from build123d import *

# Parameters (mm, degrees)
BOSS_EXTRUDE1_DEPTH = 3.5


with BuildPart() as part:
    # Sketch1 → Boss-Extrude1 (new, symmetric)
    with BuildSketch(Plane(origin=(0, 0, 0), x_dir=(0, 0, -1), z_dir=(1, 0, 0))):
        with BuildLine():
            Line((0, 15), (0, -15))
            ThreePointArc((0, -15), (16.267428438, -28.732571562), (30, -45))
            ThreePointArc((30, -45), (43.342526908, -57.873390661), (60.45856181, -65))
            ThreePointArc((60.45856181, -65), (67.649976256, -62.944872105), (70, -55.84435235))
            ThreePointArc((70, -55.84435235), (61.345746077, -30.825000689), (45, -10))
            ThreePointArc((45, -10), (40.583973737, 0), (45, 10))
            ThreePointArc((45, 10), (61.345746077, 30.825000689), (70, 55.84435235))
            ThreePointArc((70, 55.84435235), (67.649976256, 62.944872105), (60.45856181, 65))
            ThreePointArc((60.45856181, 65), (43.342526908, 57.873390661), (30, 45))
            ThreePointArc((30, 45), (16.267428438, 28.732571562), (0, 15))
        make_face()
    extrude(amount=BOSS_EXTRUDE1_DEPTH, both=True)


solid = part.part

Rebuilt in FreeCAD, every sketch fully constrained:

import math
import FreeCAD as App
import Part
import Sketcher

V = App.Vector
Q = App.Units.Quantity

doc = App.newDocument("Part")
body = doc.addObject("PartDesign::Body", "Body")

sketch1 = body.newObject("Sketcher::SketchObject", "Sketch")
sketch1.AttachmentSupport = (doc.getObject("YZ_Plane"), [""])
sketch1.MapMode = "FlatFace"
sketch1.addGeometry([
    Part.LineSegment(V(15, 0, 0), V(-15, 0, 0)),
    Part.ArcOfCircle(Part.Circle(V(-118.128694, 73.128694, 0), V(0, 0, 1), 126.425208), math.radians(-54.659496), math.radians(-35.340504)),
    Part.ArcOfCircle(Part.Circle(V(-16.078278, -70.786444, 0), V(0, 0, 1), 50), math.radians(125.340504), math.radians(168.079303)),
    Part.ArcOfCircle(Part.Circle(V(-57.172525, -62.111023, 0), V(0, 0, 1), 8), math.radians(168.079303), math.radians(279.556582)),
    Part.ArcOfCircle(Part.Circle(V(-69.126074, 8.88977, 0), V(0, 0, 1), 80), math.radians(-80.443418), math.radians(-42.347242)),
    Part.ArcOfCircle(Part.Circle(V(0, -54.114383, 0), V(0, 0, 1), 13.53041), math.radians(42.347242), math.radians(137.652758)),
    Part.ArcOfCircle(Part.Circle(V(69.126074, 8.88977, 0), V(0, 0, 1), 80), math.radians(-137.652758), math.radians(-99.556582)),
    Part.ArcOfCircle(Part.Circle(V(57.172525, -62.111023, 0), V(0, 0, 1), 8), math.radians(-99.556582), math.radians(11.920697)),
    Part.ArcOfCircle(Part.Circle(V(16.078278, -70.786444, 0), V(0, 0, 1), 50), math.radians(11.920697), math.radians(54.659496)),
    Part.ArcOfCircle(Part.Circle(V(118.128694, 73.128694, 0), V(0, 0, 1), 126.425208), math.radians(-144.659496), math.radians(-125.340504)),
], False)
sketch1.addConstraint([
    Sketcher.Constraint("Coincident", 0, 2, 1, 2),
    Sketcher.Constraint("Tangent", 1, 1, 2, 1),
    Sketcher.Constraint("Tangent", 2, 2, 3, 1),
    Sketcher.Constraint("Tangent", 3, 2, 4, 1),
    Sketcher.Constraint("Tangent", 4, 2, 5, 2),
    Sketcher.Constraint("Tangent", 5, 1, 6, 1),
    Sketcher.Constraint("Tangent", 6, 2, 7, 1),
    Sketcher.Constraint("Tangent", 7, 2, 8, 1),
    Sketcher.Constraint("Tangent", 8, 2, 9, 2),
    Sketcher.Constraint("Coincident", 9, 1, 0, 1),
    Sketcher.Constraint("Horizontal", 0),
    Sketcher.Constraint("Equal", 4, 6),
    Sketcher.Constraint("Equal", 3, 7),
    Sketcher.Constraint("Equal", 2, 8),
    Sketcher.Constraint("Equal", 1, 9),
    Sketcher.Constraint("Symmetric", 0, 2, 9, 1, -1, 1),
    Sketcher.Constraint("Symmetric", 4, 3, 6, 3, -2),
    Sketcher.Constraint("Symmetric", 2, 3, 8, 3, -2),
    Sketcher.Constraint("Radius", 2, Q("50 mm")),
    Sketcher.Constraint("Radius", 3, Q("8 mm")),
    Sketcher.Constraint("Radius", 4, Q("80 mm")),
    Sketcher.Constraint("DistanceX", 0, 2, 0, 1, Q("30 mm")),
    Sketcher.Constraint("DistanceX", 1, 1, -1, 1, Q("45 mm")),
    Sketcher.Constraint("DistanceY", 1, 1, -1, 1, Q("30 mm")),
    Sketcher.Constraint("DistanceX", 2, 2, -1, 1, Q("65 mm")),
    Sketcher.Constraint("DistanceY", 3, 2, -1, 1, Q("70 mm")),
    Sketcher.Constraint("DistanceX", 4, 2, -1, 1, Q("10 mm")),
    Sketcher.Constraint("DistanceY", 4, 2, -1, 1, Q("45 mm")),
])
pad1 = body.newObject("PartDesign::Pad", "Pad")
pad1.Profile = sketch1
pad1.Length = 7
pad1.Midplane = True

doc.recompute()
